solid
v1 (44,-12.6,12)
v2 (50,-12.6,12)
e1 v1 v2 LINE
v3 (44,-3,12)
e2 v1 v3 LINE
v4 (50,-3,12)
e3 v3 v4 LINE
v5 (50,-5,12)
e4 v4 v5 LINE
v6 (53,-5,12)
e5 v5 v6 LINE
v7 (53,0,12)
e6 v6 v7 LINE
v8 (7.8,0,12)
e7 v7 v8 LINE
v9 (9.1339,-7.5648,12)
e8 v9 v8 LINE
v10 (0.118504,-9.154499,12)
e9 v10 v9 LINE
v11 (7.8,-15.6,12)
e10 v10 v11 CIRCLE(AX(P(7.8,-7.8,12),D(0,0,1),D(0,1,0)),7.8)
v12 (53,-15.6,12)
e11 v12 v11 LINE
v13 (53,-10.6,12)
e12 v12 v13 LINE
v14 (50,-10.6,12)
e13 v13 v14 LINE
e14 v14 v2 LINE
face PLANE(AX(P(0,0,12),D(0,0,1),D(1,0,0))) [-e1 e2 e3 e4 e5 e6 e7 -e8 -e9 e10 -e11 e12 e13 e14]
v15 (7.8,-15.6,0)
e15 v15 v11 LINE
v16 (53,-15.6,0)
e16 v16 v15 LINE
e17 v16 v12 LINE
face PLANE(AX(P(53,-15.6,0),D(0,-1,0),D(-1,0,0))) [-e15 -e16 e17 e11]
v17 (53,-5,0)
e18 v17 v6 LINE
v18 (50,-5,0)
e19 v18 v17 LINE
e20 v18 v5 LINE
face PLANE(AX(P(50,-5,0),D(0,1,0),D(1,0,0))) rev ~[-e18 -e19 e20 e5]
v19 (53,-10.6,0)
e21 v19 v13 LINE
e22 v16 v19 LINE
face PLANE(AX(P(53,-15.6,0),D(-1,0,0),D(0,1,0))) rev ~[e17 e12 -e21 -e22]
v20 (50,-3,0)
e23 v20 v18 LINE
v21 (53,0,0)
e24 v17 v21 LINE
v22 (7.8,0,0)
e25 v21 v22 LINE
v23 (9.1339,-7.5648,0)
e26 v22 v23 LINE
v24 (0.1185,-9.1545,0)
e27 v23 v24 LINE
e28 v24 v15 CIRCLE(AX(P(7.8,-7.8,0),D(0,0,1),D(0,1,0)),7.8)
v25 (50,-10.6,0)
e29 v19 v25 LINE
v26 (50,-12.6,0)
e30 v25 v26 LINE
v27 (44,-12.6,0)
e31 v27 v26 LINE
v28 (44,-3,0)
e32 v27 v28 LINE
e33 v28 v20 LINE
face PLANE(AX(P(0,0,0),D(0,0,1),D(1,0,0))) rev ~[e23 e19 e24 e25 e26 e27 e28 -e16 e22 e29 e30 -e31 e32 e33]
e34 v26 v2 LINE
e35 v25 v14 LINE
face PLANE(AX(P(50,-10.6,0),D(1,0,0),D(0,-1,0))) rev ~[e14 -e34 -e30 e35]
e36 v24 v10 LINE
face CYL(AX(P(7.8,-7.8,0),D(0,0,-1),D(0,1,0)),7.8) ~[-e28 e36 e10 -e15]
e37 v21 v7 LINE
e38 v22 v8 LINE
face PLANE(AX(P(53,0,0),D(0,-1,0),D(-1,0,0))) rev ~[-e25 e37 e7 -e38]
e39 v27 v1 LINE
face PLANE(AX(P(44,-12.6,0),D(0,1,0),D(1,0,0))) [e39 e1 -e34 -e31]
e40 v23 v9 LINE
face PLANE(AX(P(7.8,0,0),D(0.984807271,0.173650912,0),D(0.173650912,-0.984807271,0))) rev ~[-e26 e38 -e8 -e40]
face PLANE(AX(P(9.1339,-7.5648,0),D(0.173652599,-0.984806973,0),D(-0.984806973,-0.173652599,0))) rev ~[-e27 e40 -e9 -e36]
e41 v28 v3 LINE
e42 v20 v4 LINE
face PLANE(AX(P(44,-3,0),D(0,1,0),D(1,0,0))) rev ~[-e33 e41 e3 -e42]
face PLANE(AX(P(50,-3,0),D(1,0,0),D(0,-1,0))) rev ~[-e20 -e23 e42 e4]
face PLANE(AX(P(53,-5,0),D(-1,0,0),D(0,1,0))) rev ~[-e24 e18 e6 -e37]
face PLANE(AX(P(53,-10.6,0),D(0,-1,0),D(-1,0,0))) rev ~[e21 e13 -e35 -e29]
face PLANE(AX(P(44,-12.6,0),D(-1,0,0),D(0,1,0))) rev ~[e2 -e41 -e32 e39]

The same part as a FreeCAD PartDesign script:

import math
import FreeCAD as App
import Part
import Sketcher
Q = App.Units.Quantity

doc = App.newDocument("Part")
params = doc.addObject("Spreadsheet::Sheet", "Params")
for row, (alias, value) in enumerate([
    ("sketch1_radius", "7.8 mm"),
    ("sketch1_width", "3 mm"),
    ("sketch1_width2", "6 mm"),
    ("sketch1_height", "5 mm"),
    ("sketch1_width3", "45.2 mm"),
    ("pad1_length", "12 mm"),
    ("sketch2_radius", "7.8 mm"),
], start=1):
    params.set(f"A{row}", alias)
    params.set(f"B{row}", "=" + value)
    params.setAlias(f"B{row}", alias)

body = doc.addObject("PartDesign::Body", "Body")

# Sketch on XY plane
sketch1 = body.newObject("Sketcher::SketchObject", "Sketch")
sketch1.AttachmentSupport = (doc.getObject("XY_Plane"), [""])
sketch1.MapMode = "FlatFace"
sketch1.addGeometry(Part.LineSegment(App.Vector(7.8, -15.6, 0), App.Vector(53, -15.6, 0)), False)
sketch1.addGeometry(Part.LineSegment(App.Vector(53, -15.6, 0), App.Vector(53, -10.6, 0)), False)
sketch1.addGeometry(Part.LineSegment(App.Vector(53, -10.6, 0), App.Vector(50, -10.6, 0)), False)
sketch1.addGeometry(Part.LineSegment(App.Vector(50, -10.6, 0), App.Vector(50, -12.6, 0)), False)
sketch1.addGeometry(Part.LineSegment(App.Vector(50, -12.6, 0), App.Vector(44, -12.6, 0)), False)
sketch1.addGeometry(Part.LineSegment(App.Vector(44, -12.6, 0), App.Vector(44, -3, 0)), False)
sketch1.addGeometry(Part.LineSegment(App.Vector(44, -3, 0), App.Vector(50, -3, 0)), False)
sketch1.addGeometry(Part.LineSegment(App.Vector(50, -3, 0), App.Vector(50, -5, 0)), False)
sketch1.addGeometry(Part.LineSegment(App.Vector(50, -5, 0), App.Vector(53, -5, 0)), False)
sketch1.addGeometry(Part.LineSegment(App.Vector(53, -5, 0), App.Vector(53, 0, 0)), False)
sketch1.addGeometry(Part.LineSegment(App.Vector(53, 0, 0), App.Vector(7.8, 0, 0)), False)
sketch1.addGeometry(Part.ArcOfCircle(Part.Circle(App.Vector(7.8, -7.8, 0), App.Vector(0, 0, 1), 7.8), math.radians(90), math.radians(270)), False)
sketch1.addConstraint(Sketcher.Constraint("Coincident", 0, 2, 1, 1))
sketch1.addConstraint(Sketcher.Constraint("Coincident", 1, 2, 2, 1))
sketch1.addConstraint(Sketcher.Constraint("Coincident", 2, 2, 3, 1))
sketch1.addConstraint(Sketcher.Constraint("Coincident", 3, 2, 4, 1))
sketch1.addConstraint(Sketcher.Constraint("Coincident", 4, 2, 5, 1))
sketch1.addConstraint(Sketcher.Constraint("Coincident", 5, 2, 6, 1))
sketch1.addConstraint(Sketcher.Constraint("Coincident", 6, 2, 7, 1))
sketch1.addConstraint(Sketcher.Constraint("Coincident", 7, 2, 8, 1))
sketch1.addConstraint(Sketcher.Constraint("Coincident", 8, 2, 9, 1))
sketch1.addConstraint(Sketcher.Constraint("Coincident", 9, 2, 10, 1))
sketch1.addConstraint(Sketcher.Constraint("Tangent", 10, 2, 11, 1))
sketch1.addConstraint(Sketcher.Constraint("Tangent", 11, 2, 0, 1))
sketch1.addConstraint(Sketcher.Constraint("Horizontal", 0))
sketch1.addConstraint(Sketcher.Constraint("Vertical", 1))
sketch1.addConstraint(Sketcher.Constraint("Horizontal", 2))
sketch1.addConstraint(Sketcher.Constraint("Vertical", 3))
sketch1.addConstraint(Sketcher.Constraint("Horizontal", 4))
sketch1.addConstraint(Sketcher.Constraint("Vertical", 5))
sketch1.addConstraint(Sketcher.Constraint("Horizontal", 6))
sketch1.addConstraint(Sketcher.Constraint("Vertical", 7))
sketch1.addConstraint(Sketcher.Constraint("Horizontal", 8))
sketch1.addConstraint(Sketcher.Constraint("Vertical", 9))
sketch1.addConstraint(Sketcher.Constraint("Horizontal", 10))
sketch1.addConstraint(Sketcher.Constraint("PointOnObject", 9, 2, -1))
sketch1.addConstraint(Sketcher.Constraint("Vertical", 3, 2, 6, 2))
sketch1.addConstraint(Sketcher.Constraint("Vertical", 1, 2, 8, 2))
sketch1.addConstraint(Sketcher.Constraint("Equal", 3, 7))
sketch1.addConstraint(Sketcher.Constraint("Equal", 1, 9))
sketch1.addConstraint(Sketcher.Constraint("Radius", 11, 7.8))
sketch1.addConstraint(Sketcher.Constraint("DistanceX", 2, 2, 2, 1, 3.0))
sketch1.addConstraint(Sketcher.Constraint("DistanceX", 4, 2, 4, 1, 6.0))
sketch1.addConstraint(Sketcher.Constraint("DistanceY", 1, 1, 1, 2, 5.0))
sketch1.addConstraint(Sketcher.Constraint("DistanceX", 0, 1, 0, 2, 45.2))
sketch1.addConstraint(Sketcher.Constraint("DistanceX", -1, 1, 4, 2, 44.0))
sketch1.addConstraint(Sketcher.Constraint("DistanceY", 5, 2, -1, 1, 3.0))
sketch1.setExpression("Constraints[28]", "Params.sketch1_radius")
sketch1.setExpression("Constraints[29]", "Params.sketch1_width")
sketch1.setExpression("Constraints[30]", "Params.sketch1_width2")
sketch1.setExpression("Constraints[31]", "Params.sketch1_height")
sketch1.setExpression("Constraints[32]", "Params.sketch1_width3")
pad1 = body.newObject("PartDesign::Pad", "Pad")
pad1.Profile = sketch1
pad1.setExpression("Length", "Params.pad1_length")

# Sketch on XY plane
sketch2 = body.newObject("Sketcher::SketchObject", "Sketch001")
sketch2.AttachmentSupport = (doc.getObject("XY_Plane"), [""])
sketch2.MapMode = "FlatFace"
sketch2.addGeometry(Part.LineSegment(App.Vector(9.1339, -7.5648, 0), App.Vector(0.1185, -9.1545, 0)), False)
sketch2.addGeometry(Part.ArcOfCircle(Part.Circle(App.Vector(7.8, -7.8, 0), App.Vector(0, 0, 1), 7.8), math.radians(90), math.radians(190.00032)), False)
sketch2.addGeometry(Part.LineSegment(App.Vector(7.8, 0, 0), App.Vector(9.1339, -7.5648, 0)), False)
sketch2.addConstraint(Sketcher.Constraint("Coincident", 0, 2, 1, 2))
sketch2.addConstraint(Sketcher.Constraint("Coincident", 1, 1, 2, 1))
sketch2.addConstraint(Sketcher.Constraint("Coincident", 2, 2, 0, 1))
sketch2.addConstraint(Sketcher.Constraint("PointOnObject", 1, 1, -1))
sketch2.addConstraint(Sketcher.Constraint("Perpendicular", 0, 2))
sketch2.addConstraint(Sketcher.Constraint("Radius", 1, 7.8))
sketch2.addConstraint(Sketcher.Constraint("Angle", 0, Q("-169.9997 deg")))
sketch2.addConstraint(Sketcher.Constraint("DistanceX", -1, 1, 1, 3, 7.8))
sketch2.addConstraint(Sketcher.Constraint("DistanceX", -1, 1, 1, 1, 7.8))
sketch2.addConstraint(Sketcher.Constraint("DistanceX", -1, 1, 2, 2, 9.134))
sketch2.setExpression("Constraints[5]", "Params.sketch2_radius")
pocket1 = body.newObject("PartDesign::Pocket", "Pocket")
pocket1.Profile = sketch2
pocket1.Type = "ThroughAll"
pocket1.Reversed = True

doc.recompute()
